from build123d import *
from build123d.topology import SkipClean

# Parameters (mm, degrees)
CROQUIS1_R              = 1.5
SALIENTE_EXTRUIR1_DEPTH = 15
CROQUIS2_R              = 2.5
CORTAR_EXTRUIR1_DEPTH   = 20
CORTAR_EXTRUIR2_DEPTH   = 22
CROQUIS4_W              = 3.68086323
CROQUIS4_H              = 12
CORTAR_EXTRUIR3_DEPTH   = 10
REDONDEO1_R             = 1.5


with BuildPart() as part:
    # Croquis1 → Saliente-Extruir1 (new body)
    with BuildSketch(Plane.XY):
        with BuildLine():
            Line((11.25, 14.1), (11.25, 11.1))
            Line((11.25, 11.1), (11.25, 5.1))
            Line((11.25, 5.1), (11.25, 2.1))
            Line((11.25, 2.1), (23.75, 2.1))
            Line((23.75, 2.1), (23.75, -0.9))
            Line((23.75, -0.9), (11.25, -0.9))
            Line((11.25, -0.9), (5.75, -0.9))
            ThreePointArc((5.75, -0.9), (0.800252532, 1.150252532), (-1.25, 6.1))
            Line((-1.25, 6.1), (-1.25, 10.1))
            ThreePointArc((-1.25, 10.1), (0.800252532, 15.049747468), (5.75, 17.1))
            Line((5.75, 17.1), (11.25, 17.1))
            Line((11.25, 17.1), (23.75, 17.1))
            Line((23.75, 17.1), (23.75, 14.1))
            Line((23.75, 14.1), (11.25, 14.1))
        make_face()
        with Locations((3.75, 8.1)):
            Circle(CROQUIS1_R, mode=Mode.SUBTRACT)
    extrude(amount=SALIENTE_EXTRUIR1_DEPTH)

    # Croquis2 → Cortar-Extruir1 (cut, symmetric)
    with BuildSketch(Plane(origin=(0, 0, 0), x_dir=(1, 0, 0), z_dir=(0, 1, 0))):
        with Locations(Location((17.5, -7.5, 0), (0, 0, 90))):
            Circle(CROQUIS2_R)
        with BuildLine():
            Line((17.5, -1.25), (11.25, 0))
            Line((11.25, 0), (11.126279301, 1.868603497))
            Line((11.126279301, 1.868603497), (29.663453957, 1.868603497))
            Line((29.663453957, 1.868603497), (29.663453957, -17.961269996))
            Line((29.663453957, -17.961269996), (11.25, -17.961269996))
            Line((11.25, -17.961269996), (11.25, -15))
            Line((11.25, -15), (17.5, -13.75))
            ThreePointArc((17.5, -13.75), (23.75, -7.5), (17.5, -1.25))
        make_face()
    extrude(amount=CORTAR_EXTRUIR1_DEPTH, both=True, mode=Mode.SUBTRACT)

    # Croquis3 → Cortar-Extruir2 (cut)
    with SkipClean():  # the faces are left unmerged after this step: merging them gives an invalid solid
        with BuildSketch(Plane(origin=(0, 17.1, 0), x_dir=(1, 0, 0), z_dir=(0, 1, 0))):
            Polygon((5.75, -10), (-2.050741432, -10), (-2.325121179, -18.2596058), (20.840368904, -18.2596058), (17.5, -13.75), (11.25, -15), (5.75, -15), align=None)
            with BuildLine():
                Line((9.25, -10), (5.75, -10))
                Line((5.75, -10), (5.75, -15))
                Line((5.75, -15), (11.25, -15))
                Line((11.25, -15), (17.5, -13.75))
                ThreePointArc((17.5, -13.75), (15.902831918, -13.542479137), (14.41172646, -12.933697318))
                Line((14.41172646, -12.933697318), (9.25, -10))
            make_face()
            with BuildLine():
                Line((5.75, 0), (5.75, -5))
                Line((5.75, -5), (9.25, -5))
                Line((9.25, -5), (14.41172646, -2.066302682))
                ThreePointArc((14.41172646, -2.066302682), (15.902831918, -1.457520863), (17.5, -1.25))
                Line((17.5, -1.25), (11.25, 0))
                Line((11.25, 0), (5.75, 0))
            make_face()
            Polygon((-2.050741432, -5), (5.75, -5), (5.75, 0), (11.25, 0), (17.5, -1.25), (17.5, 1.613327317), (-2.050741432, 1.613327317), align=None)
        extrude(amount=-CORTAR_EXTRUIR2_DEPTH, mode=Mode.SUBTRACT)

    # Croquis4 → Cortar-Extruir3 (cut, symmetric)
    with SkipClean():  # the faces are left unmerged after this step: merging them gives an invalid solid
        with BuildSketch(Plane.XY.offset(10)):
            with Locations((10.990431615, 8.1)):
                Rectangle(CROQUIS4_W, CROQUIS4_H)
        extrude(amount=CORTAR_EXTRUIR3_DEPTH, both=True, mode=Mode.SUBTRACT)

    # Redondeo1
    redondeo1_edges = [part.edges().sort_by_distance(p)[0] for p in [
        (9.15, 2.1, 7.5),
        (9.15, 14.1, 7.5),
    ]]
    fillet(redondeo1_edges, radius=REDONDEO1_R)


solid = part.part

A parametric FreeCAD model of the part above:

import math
import FreeCAD as App
import Part
import Sketcher


def edges_at(feature, points):
    """Names of the edges that pass closest to the given points."""
    edges = feature.Shape.Edges
    near = lambda p: min(range(len(edges)), key=lambda i: edges[i].distToShape(Part.Vertex(*p))[0])
    return sorted({f"Edge{near(p) + 1}" for p in points})

doc = App.newDocument("Part")
body = doc.addObject("PartDesign::Body", "Body")

# Sketch on XY plane
sketch1 = doc.addObject("Sketcher::SketchObject", "Sketch")
body.addObject(sketch1)
sketch1.AttachmentSupport = (doc.XY_Plane, [""])
sketch1.MapMode = "FlatFace"
sketch1.addGeometry(Part.LineSegment(App.Vector(11.2, 2.1, 0), App.Vector(11.2, 14.1, 0)), False)
sketch1.addGeometry(Part.LineSegment(App.Vector(11.2, 14.1, 0), App.Vector(23.8, 14.1, 0)), False)
sketch1.addGeometry(Part.LineSegment(App.Vector(23.8, 14.1, 0), App.Vector(23.8, 17.1, 0)), False)
sketch1.addGeometry(Part.LineSegment(App.Vector(23.8, 17.1, 0), App.Vector(5.8, 17.1, 0)), False)
sketch1.addGeometry(Part.ArcOfCircle(Part.Circle(App.Vector(5.8, 10.1, 0), App.Vector(0, 0, 1), 7), math.radians(90), math.radians(180)), False)
sketch1.addGeometry(Part.LineSegment(App.Vector(-1.2, 10.1, 0), App.Vector(-1.2, 6.1, 0)), False)
sketch1.addGeometry(Part.ArcOfCircle(Part.Circle(App.Vector(5.8, 6.1, 0), App.Vector(0, 0, 1), 7), math.radians(-180), math.radians(-90)), False)
sketch1.addGeometry(Part.LineSegment(App.Vector(5.8, -0.9, 0), App.Vector(23.8, -0.9, 0)), False)
sketch1.addGeometry(Part.LineSegment(App.Vector(23.8, -0.9, 0), App.Vector(23.8, 2.1, 0)), False)
sketch1.addGeometry(Part.LineSegment(App.Vector(23.8, 2.1, 0), App.Vector(11.2, 2.1, 0)), False)
sketch1.addGeometry(Part.Circle(App.Vector(3.8, 8.1, 0), App.Vector(0, 0, 1), 1.5), False)
sketch1.addConstraint(Sketcher.Constraint("Coincident", 0, 2, 1, 1))
sketch1.addConstraint(Sketcher.Constraint("Coincident", 1, 2, 2, 1))
sketch1.addConstraint(Sketcher.Constraint("Coincident", 2, 2, 3, 1))
sketch1.addConstraint(Sketcher.Constraint("Tangent", 3, 2, 4, 1))
sketch1.addConstraint(Sketcher.Constraint("Tangent", 4, 2, 5, 1))
sketch1.addConstraint(Sketcher.Constraint("Tangent", 5, 2, 6, 1))
sketch1.addConstraint(Sketcher.Constraint("Tangent", 6, 2, 7, 1))
sketch1.addConstraint(Sketcher.Constraint("Coincident", 7, 2, 8, 1))
sketch1.addConstraint(Sketcher.Constraint("Coincident", 8, 2, 9, 1))
sketch1.addConstraint(Sketcher.Constraint("Coincident", 9, 2, 0, 1))
sketch1.addConstraint(Sketcher.Constraint("Vertical", 0))
sketch1.addConstraint(Sketcher.Constraint("Horizontal", 1))
sketch1.addConstraint(Sketcher.Constraint("Vertical", 2))
sketch1.addConstraint(Sketcher.Constraint("Horizontal", 3))
sketch1.addConstraint(Sketcher.Constraint("Vertical", 5))
sketch1.addConstraint(Sketcher.Constraint("Horizontal", 7))
sketch1.addConstraint(Sketcher.Constraint("Vertical", 8))
sketch1.addConstraint(Sketcher.Constraint("Horizontal", 9))
sketch1.addConstraint(Sketcher.Constraint("Equal", 4, 6))
sketch1.addConstraint(Sketcher.Constraint("Vertical", 2, 2, 7, 2))
sketch1.addConstraint(Sketcher.Constraint("Equal", 2, 8))
sketch1.addConstraint(Sketcher.Constraint("Diameter", 10, 3.0))
sketch1.addConstraint(Sketcher.Constraint("Radius", 4, 7.0))
sketch1.addConstraint(Sketcher.Constraint("DistanceX", 3, 2, 3, 1, 18.0))
sketch1.addConstraint(Sketcher.Constraint("DistanceY", 0, 1, 0, 2, 12.0))
sketch1.addConstraint(Sketcher.Constraint("DistanceY", 2, 1, 2, 2, 3.0))
sketch1.addConstraint(Sketcher.Constraint("DistanceX", 1, 1, 1, 2, 12.5))
sketch1.addConstraint(Sketcher.Constraint("DistanceX", 10, 3, 4, 3, 2.0))
sketch1.addConstraint(Sketcher.Constraint("DistanceY", 10, 3, 4, 3, 2.0))
sketch1.addConstraint(Sketcher.Constraint("DistanceY", -1, 1, 4, 3, 10.1))
sketch1.addConstraint(Sketcher.Constraint("DistanceX", -1, 1, 4, 3, 5.75))
pad1 = doc.addObject("PartDesign::Pad", "Pad")
body.addObject(pad1)
pad1.Profile = sketch1
pad1.Length = 15

# Sketch on XZ plane
sketch2 = doc.addObject("Sketcher::SketchObject", "Sketch001")
body.addObject(sketch2)
sketch2.AttachmentSupport = (doc.XZ_Plane, [""])
sketch2.MapMode = "FlatFace"
sketch2.addGeometry(Part.Circle(App.Vector(17.5, 7.5, 0), App.Vector(0, 0, 1), 2.5), False)
sketch2.addGeometry(Part.LineSegment(App.Vector(11.2, 0, 0), App.Vector(17.5, 1.2, 0)), False)
sketch2.addGeometry(Part.ArcOfCircle(Part.Circle(App.Vector(17.5, 7.5, 0), App.Vector(0, 0, 1), 6.2), math.radians(-90), math.radians(90)), False)
sketch2.addGeometry(Part.LineSegment(App.Vector(17.5, 13.8, 0), App.Vector(11.2, 15, 0)), False)
sketch2.addGeometry(Part.LineSegment(App.Vector(11.2, 15, 0), App.Vector(11.2, 18, 0)), False)
sketch2.addGeometry(Part.LineSegment(App.Vector(11.2, 18, 0), App.Vector(29.7, 18, 0)), False)
sketch2.addGeometry(Part.LineSegment(App.Vector(29.7, 18, 0), App.Vector(29.7, -1.9, 0)), False)
sketch2.addGeometry(Part.LineSegment(App.Vector(29.7, -1.9, 0), App.Vector(11.1, -1.9, 0)), False)
sketch2.addGeometry(Part.LineSegment(App.Vector(11.1, -1.9, 0), App.Vector(11.2, 0, 0)), False)
sketch2.addConstraint(Sketcher.Constraint("Coincident", 1, 2, 2, 1))
sketch2.addConstraint(Sketcher.Constraint("Coincident", 2, 2, 3, 1))
sketch2.addConstraint(Sketcher.Constraint("Coincident", 3, 2, 4, 1))
sketch2.addConstraint(Sketcher.Constraint("Coincident", 4, 2, 5, 1))
sketch2.addConstraint(Sketcher.Constraint("Coincident", 5, 2, 6, 1))
sketch2.addConstraint(Sketcher.Constraint("Coincident", 6, 2, 7, 1))
sketch2.addConstraint(Sketcher.Constraint("Coincident", 7, 2, 8, 1))
sketch2.addConstraint(Sketcher.Constraint("Coincident", 8, 2, 1, 1))
sketch2.addConstraint(Sketcher.Constraint("Vertical", 4))
sketch2.addConstraint(Sketcher.Constraint("Horizontal", 5))
sketch2.addConstraint(Sketcher.Constraint("Vertical", 6))
sketch2.addConstraint(Sketcher.Constraint("Horizontal", 7))
sketch2.addConstraint(Sketcher.Constraint("Coincident", 2, 3, 0, 3))
sketch2.addConstraint(Sketcher.Constraint("PointOnObject", 8, 2, -1))
sketch2.addConstraint(Sketcher.Constraint("Vertical", 2, 3, 1, 2))
sketch2.addConstraint(Sketcher.Constraint("Vertical", 1, 2, 2, 2))
sketch2.addConstraint(Sketcher.Constraint("Vertical", 4, 2, 8, 2))
sketch2.addConstraint(Sketcher.Constraint("Equal", 1, 3))
sketch2.addConstraint(Sketcher.Constraint("Diameter", 0, 5.0))
sketch2.addConstraint(Sketcher.Constraint("Radius", 2, 6.25))
sketch2.addConstraint(Sketcher.Constraint("DistanceY", -1, 1, 3, 2, 15.0))
sketch2.addConstraint(Sketcher.Constraint("DistanceX", -1, 1, 0, 3, 17.5))
sketch2.addConstraint(Sketcher.Constraint("DistanceX", -1, 1, 3, 2, 11.25))
sketch2.addConstraint(Sketcher.Constraint("DistanceY", 4, 1, 4, 2, 2.96127))
sketch2.addConstraint(Sketcher.Constraint("DistanceX", 5, 1, 5, 2, 18.413454))
sketch2.addConstraint(Sketcher.Constraint("DistanceX", 7, 2, 7, 1, 18.537175))
sketch2.addConstraint(Sketcher.Constraint("DistanceY", 6, 2, 6, 1, 19.829873))
pocket1 = doc.addObject("PartDesign::Pocket", "Pocket")
body.addObject(pocket1)
pocket1.Profile = sketch2
pocket1.Length = 40
pocket1.Midplane = True

# Sketch on XZ plane
sketch3 = doc.addObject("Sketcher::SketchObject", "Sketch002")
body.addObject(sketch3)
sketch3.AttachmentSupport = (doc.XZ_Plane, [""])
sketch3.MapMode = "FlatFace"
sketch3.AttachmentOffset = App.Placement(App.Vector(0, 0, -17.1), App.Rotation())
sketch3.addGeometry(Part.LineSegment(App.Vector(5.8, 10, 0), App.Vector(-2.1, 10, 0)), False)
sketch3.addGeometry(Part.LineSegment(App.Vector(-2.1, 10, 0), App.Vector(-2.3, 18.3, 0)), False)
sketch3.addGeometry(Part.LineSegment(App.Vector(-2.3, 18.3, 0), App.Vector(20.8, 18.3, 0)), False)
sketch3.addGeometry(Part.LineSegment(App.Vector(20.8, 18.3, 0), App.Vector(17.5, 13.8, 0)), False)
sketch3.addGeometry(Part.LineSegment(App.Vector(17.5, 13.8, 0), App.Vector(11.2, 15, 0)), False)
sketch3.addGeometry(Part.LineSegment(App.Vector(11.2, 15, 0), App.Vector(5.8, 15, 0)), False)
sketch3.addGeometry(Part.LineSegment(App.Vector(5.8, 15, 0), App.Vector(5.8, 10, 0)), False)
sketch3.addGeometry(Part.LineSegment(App.Vector(9.2, 10, 0), App.Vector(5.8, 10, 0)), False)
sketch3.addGeometry(Part.LineSegment(App.Vector(5.8, 10, 0), App.Vector(5.8, 15, 0)), False)
sketch3.addGeometry(Part.LineSegment(App.Vector(5.8, 15, 0), App.Vector(11.2, 15, 0)), False)
sketch3.addGeometry(Part.LineSegment(App.Vector(11.2, 15, 0), App.Vector(17.5, 13.8, 0)), False)
sketch3.addGeometry(Part.ArcOfCircle(Part.Circle(App.Vector(17.5, 7.5, 0), App.Vector(0, 0, 1), 6.2), math.radians(90), math.radians(120)), False)
sketch3.addGeometry(Part.LineSegment(App.Vector(14.4, 12.9, 0), App.Vector(9.2, 10, 0)), False)
sketch3.addGeometry(Part.LineSegment(App.Vector(5.8, 0, 0), App.Vector(5.8, 5, 0)), False)
sketch3.addGeometry(Part.LineSegment(App.Vector(5.8, 5, 0), App.Vector(9.2, 5, 0)), False)
sketch3.addGeometry(Part.LineSegment(App.Vector(9.2, 5, 0), App.Vector(14.4, 2.1, 0)), False)
sketch3.addGeometry(Part.ArcOfCircle(Part.Circle(App.Vector(17.5, 7.5, 0), App.Vector(0, 0, 1), 6.2), math.radians(-120), math.radians(-90)), False)
sketch3.addGeometry(Part.LineSegment(App.Vector(17.5, 1.2, 0), App.Vector(11.2, 0, 0)), False)
sketch3.addGeometry(Part.LineSegment(App.Vector(11.2, 0, 0), App.Vector(5.8, 0, 0)), False)
sketch3.addGeometry(Part.LineSegment(App.Vector(-2.1, 5, 0), App.Vector(5.8, 5, 0)), False)
sketch3.addGeometry(Part.LineSegment(App.Vector(5.8, 5, 0), App.Vector(5.8, 0, 0)), False)
sketch3.addGeometry(Part.LineSegment(App.Vector(5.8, 0, 0), App.Vector(11.2, 0, 0)), False)
sketch3.addGeometry(Part.LineSegment(App.Vector(11.2, 0, 0), App.Vector(17.5, 1.2, 0)), False)
sketch3.addGeometry(Part.LineSegment(App.Vector(17.5, 1.2, 0), App.Vector(17.5, -1.6, 0)), False)
sketch3.addGeometry(Part.LineSegment(App.Vector(17.5, -1.6, 0), App.Vector(-2.1, -1.6, 0)), False)
sketch3.addGeometry(Part.LineSegment(App.Vector(-2.1, -1.6, 0), App.Vector(-2.1, 5, 0)), False)
sketch3.addConstraint(Sketcher.Constraint("Coincident", 0, 2, 1, 1))
sketch3.addConstraint(Sketcher.Constraint("Coincident", 1, 2, 2, 1))
sketch3.addConstraint(Sketcher.Constraint("Coincident", 2, 2, 3, 1))
sketch3.addConstraint(Sketcher.Constraint("Coincident", 3, 2, 4, 1))
sketch3.addConstraint(Sketcher.Constraint("Coincident", 4, 2, 5, 1))
sketch3.addConstraint(Sketcher.Constraint("Coincident", 5, 2, 6, 1))
sketch3.addConstraint(Sketcher.Constraint("Coincident", 6, 2, 0, 1))
sketch3.addConstraint(Sketcher.Constraint("Coincident", 7, 2, 8, 1))
sketch3.addConstraint(Sketcher.Constraint("Coincident", 8, 2, 9, 1))
sketch3.addConstraint(Sketcher.Constraint("Coincident", 9, 2, 10, 1))
sketch3.addConstraint(Sketcher.Constraint("Coincident", 10, 2, 11, 1))
sketch3.addConstraint(Sketcher.Constraint("Tangent", 11, 2, 12, 1))
sketch3.addConstraint(Sketcher.Constraint("Coincident", 12, 2, 7, 1))
sketch3.addConstraint(Sketcher.Constraint("Coincident", 13, 2, 14, 1))
sketch3.addConstraint(Sketcher.Constraint("Coincident", 14, 2, 15, 1))
sketch3.addConstraint(Sketcher.Constraint("Tangent", 15, 2, 16, 1))
sketch3.addConstraint(Sketcher.Constraint("Coincident", 16, 2, 17, 1))
sketch3.addConstraint(Sketcher.Constraint("Coincident", 17, 2, 18, 1))
sketch3.addConstraint(Sketcher.Constraint("Coincident", 18, 2, 13, 1))
sketch3.addConstraint(Sketcher.Constraint("Coincident", 19, 2, 20, 1))
sketch3.addConstraint(Sketcher.Constraint("Coincident", 20, 2, 21, 1))
sketch3.addConstraint(Sketcher.Constraint("Coincident", 21, 2, 22, 1))
sketch3.addConstraint(Sketcher.Constraint("Coincident", 22, 2, 23, 1))
sketch3.addConstraint(Sketcher.Constraint("Coincident", 23, 2, 24, 1))
sketch3.addConstraint(Sketcher.Constraint("Coincident", 24, 2, 25, 1))
sketch3.addConstraint(Sketcher.Constraint("Coincident", 25, 2, 19, 1))
sketch3.addConstraint(Sketcher.Constraint("Horizontal", 0))
sketch3.addConstraint(Sketcher.Constraint("Horizontal", 2))
sketch3.addConstraint(Sketcher.Constraint("Horizontal", 5))
sketch3.addConstraint(Sketcher.Constraint("Vertical", 6))
sketch3.addConstraint(Sketcher.Constraint("Horizontal", 7))
sketch3.addConstraint(Sketcher.Constraint("Vertical", 8))
sketch3.addConstraint(Sketcher.Constraint("Horizontal", 9))
sketch3.addConstraint(Sketcher.Constraint("Vertical", 13))
sketch3.addConstraint(Sketcher.Constraint("Horizontal", 14))
sketch3.addConstraint(Sketcher.Constraint("Horizontal", 18))
sketch3.addConstraint(Sketcher.Constraint("Horizontal", 19))
sketch3.addConstraint(Sketcher.Constraint("Vertical", 20))
sketch3.addConstraint(Sketcher.Constraint("Horizontal", 21))
sketch3.addConstraint(Sketcher.Constraint("Vertical", 23))
sketch3.addConstraint(Sketcher.Constraint("Horizontal", 24))
sketch3.addConstraint(Sketcher.Constraint("Vertical", 25))
sketch3.addConstraint(Sketcher.Constraint("Coincident", 16, 3, 11, 3))
sketch3.addConstraint(Sketcher.Constraint("Coincident", 7, 2, 6, 2))
sketch3.addConstraint(Sketcher.Constraint("Coincident", 9, 2, 4, 2))
sketch3.addConstraint(Sketcher.Constraint("Coincident", 10, 2, 3, 2))
sketch3.addConstraint(Sketcher.Constraint("Coincident", 19, 2, 13, 2))
sketch3.addConstraint(Sketcher.Constraint("Coincident", 21, 2, 17, 2))
sketch3.addConstraint(Sketcher.Constraint("Coincident", 22, 2, 16, 2))
sketch3.addConstraint(Sketcher.Constraint("Equal", 11, 16))
sketch3.addConstraint(Sketcher.Constraint("PointOnObject", 17, 2, -1))
sketch3.addConstraint(Sketcher.Constraint("Vertical", 16, 3, 3, 2))
sketch3.addConstraint(Sketcher.Constraint("Vertical", 8, 2, 13, 2))
sketch3.addConstraint(Sketcher.Constraint("Vertical", 12, 2, 14, 2))
sketch3.addConstraint(Sketcher.Constraint("Vertical", 11, 2, 15, 2))
sketch3.addConstraint(Sketcher.Constraint("Vertical", 10, 2, 16, 2))
sketch3.addConstraint(Sketcher.Constraint("Vertical", 9, 2, 17, 2))
sketch3.addConstraint(Sketcher.Constraint("Vertical", 0, 2, 24, 2))
sketch3.addConstraint(Sketcher.Constraint("Equal", 8, 13))
sketch3.addConstraint(Sketcher.Constraint("DistanceY", 6, 2, 6, 1, 5.0))
sketch3.addConstraint(Sketcher.Constraint("Radius", 11, 6.25))
sketch3.addConstraint(Sketcher.Constraint("DistanceX", 5, 2, 5, 1, 5.5))
sketch3.addConstraint(Sketcher.Constraint("DistanceX", 7, 2, 7, 1, 3.5))
sketch3.addConstraint(Sketcher.Constraint("DistanceY", -1, 1, 0, 2, 10.0))
sketch3.addConstraint(Sketcher.Constraint("DistanceX", -1, 1, 11, 3, 17.5))
sketch3.addConstraint(Sketcher.Constraint("DistanceX", -1, 1, 4, 2, 11.25))
sketch3.addConstraint(Sketcher.Constraint("DistanceX", 0, 2, 0, 1, 7.800741))
sketch3.addConstraint(Sketcher.Constraint("DistanceX", 2, 1, 2, 2, 23.16549))
sketch3.addConstraint(Sketcher.Constraint("Distance", 1, 8.264162))
sketch3.addConstraint(Sketcher.Constraint("DistanceY", 23, 2, 23, 1, 2.863327))
sketch3.addConstraint(Sketcher.Constraint("DistanceX", 1, 2, -1, 1, 2.325121))
pocket2 = doc.addObject("PartDesign::Pocket", "Pocket001")
body.addObject(pocket2)
pocket2.Profile = sketch3
pocket2.Length = 22
pocket2.Reversed = True

# Sketch on XY plane
sketch4 = doc.addObject("Sketcher::SketchObject", "Sketch003")
body.addObject(sketch4)
sketch4.AttachmentSupport = (doc.XY_Plane, [""])
sketch4.MapMode = "FlatFace"
sketch4.AttachmentOffset = App.Placement(App.Vector(0, 0, 10), App.Rotation())
sketch4.addGeometry(Part.LineSegment(App.Vector(9.2, 14.1, 0), App.Vector(9.2, 2.1, 0)), False)
sketch4.addGeometry(Part.LineSegment(App.Vector(9.2, 2.1, 0), App.Vector(12.8, 2.1, 0)), False)
sketch4.addGeometry(Part.LineSegment(App.Vector(12.8, 2.1, 0), App.Vector(12.8, 14.1, 0)), False)
sketch4.addGeometry(Part.LineSegment(App.Vector(12.8, 14.1, 0), App.Vector(9.2, 14.1, 0)), False)
sketch4.addConstraint(Sketcher.Constraint("Coincident", 0, 2, 1, 1))
sketch4.addConstraint(Sketcher.Constraint("Coincident", 1, 2, 2, 1))
sketch4.addConstraint(Sketcher.Constraint("Coincident", 2, 2, 3, 1))
sketch4.addConstraint(Sketcher.Constraint("Coincident", 3, 2, 0, 1))
sketch4.addConstraint(Sketcher.Constraint("Vertical", 0))
sketch4.addConstraint(Sketcher.Constraint("Horizontal", 1))
sketch4.addConstraint(Sketcher.Constraint("Vertical", 2))
sketch4.addConstraint(Sketcher.Constraint("Horizontal", 3))
sketch4.addConstraint(Sketcher.Constraint("DistanceY", 0, 2, 0, 1, 12.0))
sketch4.addConstraint(Sketcher.Constraint("DistanceY", -1, 1, 0, 2, 2.1))
sketch4.addConstraint(Sketcher.Constraint("DistanceX", -1, 1, 0, 2, 9.15))
sketch4.addConstraint(Sketcher.Constraint("DistanceX", 1, 1, 1, 2, 3.680863))
pocket3 = doc.addObject("PartDesign::Pocket", "Pocket002")
body.addObject(pocket3)
pocket3.Profile = sketch4
pocket3.Length = 20
pocket3.Midplane = True
doc.recompute()

fillet = doc.addObject("PartDesign::Fillet", "Fillet")
body.addObject(fillet)
fillet.Base = (pocket3, edges_at(pocket3, [(9.15, 2.1, 7.5), (9.15, 14.1, 7.5)]))
fillet.Radius = 1.5

doc.recompute()
